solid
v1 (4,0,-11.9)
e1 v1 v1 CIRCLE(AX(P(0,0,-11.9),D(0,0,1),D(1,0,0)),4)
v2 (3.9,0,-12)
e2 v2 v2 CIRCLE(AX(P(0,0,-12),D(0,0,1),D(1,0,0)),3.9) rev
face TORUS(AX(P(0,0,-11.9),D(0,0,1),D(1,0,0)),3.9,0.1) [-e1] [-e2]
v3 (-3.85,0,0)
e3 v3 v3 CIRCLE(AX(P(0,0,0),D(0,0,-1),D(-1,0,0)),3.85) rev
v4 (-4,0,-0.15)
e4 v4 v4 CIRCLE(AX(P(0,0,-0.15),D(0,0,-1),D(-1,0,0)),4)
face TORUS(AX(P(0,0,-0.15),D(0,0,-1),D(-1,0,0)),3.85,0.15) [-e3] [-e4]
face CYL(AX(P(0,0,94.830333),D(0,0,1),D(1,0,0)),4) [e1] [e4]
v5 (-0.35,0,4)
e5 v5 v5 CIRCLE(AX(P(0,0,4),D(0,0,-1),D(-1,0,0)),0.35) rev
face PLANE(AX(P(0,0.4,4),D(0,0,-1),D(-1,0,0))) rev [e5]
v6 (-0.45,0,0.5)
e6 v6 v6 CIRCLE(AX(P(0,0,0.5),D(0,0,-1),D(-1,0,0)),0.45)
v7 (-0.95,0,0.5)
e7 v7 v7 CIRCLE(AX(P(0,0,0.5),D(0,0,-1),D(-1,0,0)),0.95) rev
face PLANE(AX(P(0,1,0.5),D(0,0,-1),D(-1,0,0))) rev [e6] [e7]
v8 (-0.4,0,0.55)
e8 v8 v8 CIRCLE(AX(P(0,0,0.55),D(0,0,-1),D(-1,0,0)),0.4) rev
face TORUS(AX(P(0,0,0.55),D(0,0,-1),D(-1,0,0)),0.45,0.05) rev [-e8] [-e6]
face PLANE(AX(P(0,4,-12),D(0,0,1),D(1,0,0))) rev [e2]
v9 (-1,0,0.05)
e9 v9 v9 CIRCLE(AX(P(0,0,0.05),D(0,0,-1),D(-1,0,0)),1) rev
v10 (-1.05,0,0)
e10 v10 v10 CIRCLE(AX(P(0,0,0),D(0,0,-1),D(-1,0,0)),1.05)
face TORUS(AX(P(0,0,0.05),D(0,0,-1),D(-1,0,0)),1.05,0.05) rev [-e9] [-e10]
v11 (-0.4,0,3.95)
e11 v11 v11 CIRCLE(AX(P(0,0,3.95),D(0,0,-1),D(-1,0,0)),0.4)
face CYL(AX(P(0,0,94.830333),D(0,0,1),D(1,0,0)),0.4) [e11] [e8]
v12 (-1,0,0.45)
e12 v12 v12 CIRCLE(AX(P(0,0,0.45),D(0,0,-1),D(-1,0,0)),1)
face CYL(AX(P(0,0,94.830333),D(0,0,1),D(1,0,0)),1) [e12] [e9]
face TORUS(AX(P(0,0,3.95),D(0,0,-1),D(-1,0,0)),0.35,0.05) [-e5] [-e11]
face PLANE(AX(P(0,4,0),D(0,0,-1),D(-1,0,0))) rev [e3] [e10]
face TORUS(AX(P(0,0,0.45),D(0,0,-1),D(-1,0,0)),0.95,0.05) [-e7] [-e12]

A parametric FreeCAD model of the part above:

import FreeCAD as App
import Part
import Sketcher
Q = App.Units.Quantity


def edges_at(feature, points):
    """Names of the edges that pass closest to the given points."""
    edges = feature.Shape.Edges
    near = lambda p: min(range(len(edges)), key=lambda i: edges[i].distToShape(Part.Vertex(*p))[0])
    return sorted({f"Edge{near(p) + 1}" for p in points})

doc = App.newDocument("Part")
params = doc.addObject("Spreadsheet::Sheet", "Params")
for row, (alias, value) in enumerate([
    ("sketch1_width", "3 mm"),
    ("sketch1_width2", "4 mm"),
    ("sketch1_height", "12 mm"),
    ("sketch1_height2", "16 mm"),
    ("sketch1_width3", "0.6 mm"),
    ("revolution_angle", "360 deg"),
    ("fillet_radius", "0.05 mm"),
    ("fillet2_radius", "0.15 mm"),
    ("fillet3_radius", "0.1 mm"),
], start=1):
    params.set(f"A{row}", alias)
    params.set(f"B{row}", "=" + value)
    params.setAlias(f"B{row}", alias)

body = doc.addObject("PartDesign::Body", "Body")

# Sketch on YZ plane
sketch1 = doc.addObject("Sketcher::SketchObject", "Sketch")
body.addObject(sketch1)
sketch1.AttachmentSupport = (doc.YZ_Plane, [""])
sketch1.MapMode = "FlatFace"
sketch1.addGeometry([
    Part.LineSegment(App.Vector(4, -12, 0), App.Vector(4, 0, 0)),  # 0
    Part.LineSegment(App.Vector(4, 0, 0), App.Vector(1, 0, 0)),  # 1
    Part.LineSegment(App.Vector(1, 0, 0), App.Vector(1, 0.5, 0)),  # 2
    Part.LineSegment(App.Vector(1, 0.5, 0), App.Vector(0.4, 0.5, 0)),  # 3
    Part.LineSegment(App.Vector(0.4, 0.5, 0), App.Vector(0.4, 4, 0)),  # 4
    Part.LineSegment(App.Vector(0.4, 4, 0), App.Vector(0, 4, 0)),  # 5
    Part.LineSegment(App.Vector(0, 4, 0), App.Vector(0, -12, 0)),  # 6
    Part.LineSegment(App.Vector(0, -12, 0), App.Vector(4, -12, 0)),  # 7
], False)
sketch1.addConstraint([
    Sketcher.Constraint("Coincident", 0, 2, 1, 1),
    Sketcher.Constraint("Coincident", 1, 2, 2, 1),
    Sketcher.Constraint("Coincident", 2, 2, 3, 1),
    Sketcher.Constraint("Coincident", 3, 2, 4, 1),
    Sketcher.Constraint("Coincident", 4, 2, 5, 1),
    Sketcher.Constraint("Coincident", 5, 2, 6, 1),
    Sketcher.Constraint("Coincident", 6, 2, 7, 1),
    Sketcher.Constraint("Coincident", 7, 2, 0, 1),
    Sketcher.Constraint("Vertical", 0),
    Sketcher.Constraint("Horizontal", 1),
    Sketcher.Constraint("Vertical", 2),
    Sketcher.Constraint("Horizontal", 3),
    Sketcher.Constraint("Vertical", 4),
    Sketcher.Constraint("Horizontal", 5),
    Sketcher.Constraint("Vertical", 6),
    Sketcher.Constraint("Horizontal", 7),
    Sketcher.Constraint("PointOnObject", 0, 2, -1),
    Sketcher.Constraint("PointOnObject", 5, 2, -2),
    Sketcher.Constraint("DistanceX", 1, 2, 1, 1, Q("3 mm")),
    Sketcher.Constraint("DistanceX", 7, 1, 7, 2, Q("4 mm")),
    Sketcher.Constraint("DistanceY", 0, 1, 0, 2, Q("12 mm")),
    Sketcher.Constraint("DistanceY", 6, 2, 6, 1, Q("16 mm")),
    Sketcher.Constraint("DistanceX", 3, 2, 3, 1, Q("0.6 mm")),
    Sketcher.Constraint("DistanceY", 2, 1, 2, 2, Q("0.5 mm")),
])
sketch1.setExpression("Constraints[18]", "Params.sketch1_width")
sketch1.setExpression("Constraints[19]", "Params.sketch1_width2")
sketch1.setExpression("Constraints[20]", "Params.sketch1_height")
sketch1.setExpression("Constraints[21]", "Params.sketch1_height2")
sketch1.setExpression("Constraints[22]", "Params.sketch1_width3")
revolution = doc.addObject("PartDesign::Revolution", "Revolution")
body.addObject(revolution)
revolution.Profile = sketch1
revolution.ReferenceAxis = (sketch1, ["V_Axis"])
revolution.setExpression("Angle", "Params.revolution_angle")
doc.recompute()

fillet = doc.addObject("PartDesign::Fillet", "Fillet")
body.addObject(fillet)
fillet.Base = (revolution, edges_at(revolution, [
    (-1, 0, 0),
    (-1, 0, 0.5),
    (-0.4, 0, 0.5),
    (-0.4, 0, 4),
]))
fillet.setExpression("Radius", "Params.fillet_radius")
doc.recompute()

fillet2 = doc.addObject("PartDesign::Fillet", "Fillet001")
body.addObject(fillet2)
fillet2.Base = (fillet, edges_at(fillet, [(-4, 0, 0)]))
fillet2.setExpression("Radius", "Params.fillet2_radius")
doc.recompute()

fillet3 = doc.addObject("PartDesign::Fillet", "Fillet002")
body.addObject(fillet3)
fillet3.Base = (fillet2, edges_at(fillet2, [(-4, 0, -12)]))
fillet3.setExpression("Radius", "Params.fillet3_radius")

doc.recompute()
